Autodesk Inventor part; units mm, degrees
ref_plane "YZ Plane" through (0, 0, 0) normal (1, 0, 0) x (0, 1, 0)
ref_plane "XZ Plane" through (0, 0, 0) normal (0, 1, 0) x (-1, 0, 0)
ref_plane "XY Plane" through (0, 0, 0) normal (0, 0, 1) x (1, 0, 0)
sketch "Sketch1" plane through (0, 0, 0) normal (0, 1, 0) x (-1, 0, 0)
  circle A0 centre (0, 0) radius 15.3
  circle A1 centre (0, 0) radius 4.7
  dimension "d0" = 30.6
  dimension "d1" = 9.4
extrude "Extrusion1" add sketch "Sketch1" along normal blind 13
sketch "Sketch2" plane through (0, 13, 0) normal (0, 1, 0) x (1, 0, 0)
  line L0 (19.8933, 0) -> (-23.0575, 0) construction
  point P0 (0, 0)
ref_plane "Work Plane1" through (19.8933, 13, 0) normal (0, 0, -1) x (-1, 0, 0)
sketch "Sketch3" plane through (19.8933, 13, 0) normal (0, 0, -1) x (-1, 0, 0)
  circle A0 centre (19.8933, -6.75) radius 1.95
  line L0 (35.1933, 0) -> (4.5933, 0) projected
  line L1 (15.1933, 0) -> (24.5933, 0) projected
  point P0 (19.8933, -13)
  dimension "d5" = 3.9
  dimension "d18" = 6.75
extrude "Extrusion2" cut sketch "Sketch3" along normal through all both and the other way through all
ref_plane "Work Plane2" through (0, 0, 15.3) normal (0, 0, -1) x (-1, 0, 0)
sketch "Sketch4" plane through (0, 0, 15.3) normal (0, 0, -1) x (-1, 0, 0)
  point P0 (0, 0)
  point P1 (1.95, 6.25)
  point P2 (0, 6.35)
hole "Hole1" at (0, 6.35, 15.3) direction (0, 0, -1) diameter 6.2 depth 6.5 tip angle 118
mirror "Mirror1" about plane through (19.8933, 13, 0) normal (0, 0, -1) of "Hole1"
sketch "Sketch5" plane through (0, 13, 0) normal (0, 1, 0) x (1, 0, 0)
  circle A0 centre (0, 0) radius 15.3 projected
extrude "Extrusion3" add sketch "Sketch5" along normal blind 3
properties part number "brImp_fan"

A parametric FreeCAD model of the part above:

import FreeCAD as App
import Part
import Sketcher

doc = App.newDocument("Part")
params = doc.addObject("Spreadsheet::Sheet", "Params")
for row, (alias, value) in enumerate([
    ("sketch1_diameter", "30.6 mm"),
    ("sketch1_diameter2", "9.4 mm"),
    ("pad1_length", "13 mm"),
    ("sketch2_diameter", "3.9 mm"),
    ("sketch3_diameter", "6.2 mm"),
    ("hole_diameter", "6.2 mm"),
    ("hole_depth", "6.5 mm"),
    ("sketch4_diameter", "30.6 mm"),
    ("pad2_length", "3 mm"),
], start=1):
    params.set(f"A{row}", alias)
    params.set(f"B{row}", "=" + value)
    params.setAlias(f"B{row}", alias)

body = doc.addObject("PartDesign::Body", "Body")

sketch1 = body.newObject("Sketcher::SketchObject", "Sketch")
sketch1.AttachmentSupport = (doc.getObject("XZ_Plane"), [""])
sketch1.MapMode = "FlatFace"
sketch1.addGeometry([
    Part.Circle(App.Vector(0, 0, 0), App.Vector(0, 0, 1), 15.3),
    Part.Circle(App.Vector(0, 0, 0), App.Vector(0, 0, 1), 4.7),
], False)
sketch1.addConstraint([
    Sketcher.Constraint("Coincident", 0, 3, -1, 1),
    Sketcher.Constraint("Coincident", 1, 3, -1, 1),
    Sketcher.Constraint("Diameter", 0, 30.6),
    Sketcher.Constraint("Diameter", 1, 9.4),
])
sketch1.setExpression("Constraints[2]", "Params.sketch1_diameter")
sketch1.setExpression("Constraints[3]", "Params.sketch1_diameter2")
pad1 = body.newObject("PartDesign::Pad", "Pad")
pad1.Profile = sketch1
pad1.setExpression("Length", "Params.pad1_length")
pad1.Reversed = True

sketch2 = body.newObject("Sketcher::SketchObject", "Sketch001")
sketch2.AttachmentSupport = (doc.getObject("XY_Plane"), [""])
sketch2.MapMode = "FlatFace"
sketch2.addGeometry(Part.Circle(App.Vector(0, 6.2, 0), App.Vector(0, 0, 1), 1.9), False)
sketch2.addConstraint([
    Sketcher.Constraint("PointOnObject", 0, 3, -2),
    Sketcher.Constraint("Diameter", 0, 3.9),
    Sketcher.Constraint("DistanceY", -1, 1, 0, 3, 6.25),
])
sketch2.setExpression("Constraints[1]", "Params.sketch2_diameter")
pocket1 = body.newObject("PartDesign::Pocket", "Pocket")
pocket1.Profile = sketch2
pocket1.Type = "ThroughAll"
pocket1.Midplane = True

sketch3 = body.newObject("Sketcher::SketchObject", "Sketch002")
sketch3.AttachmentSupport = (doc.getObject("XY_Plane"), [""])
sketch3.MapMode = "FlatFace"
sketch3.AttachmentOffset = App.Placement(App.Vector(0, 0, 15.3), App.Rotation())
sketch3.addGeometry(Part.Circle(App.Vector(0, 6.3, 0), App.Vector(0, 0, 1), 3.1), False)
sketch3.addConstraint([
    Sketcher.Constraint("PointOnObject", 0, 3, -2),
    Sketcher.Constraint("Diameter", 0, 6.2),
    Sketcher.Constraint("DistanceY", -1, 1, 0, 3, 6.35),
])
sketch3.setExpression("Constraints[1]", "Params.sketch3_diameter")
doc.recompute()
hole = body.newObject("PartDesign::Hole", "Hole")
hole.Profile = sketch3
hole.ThreadType = "None"
hole.setExpression("Diameter", "Params.hole_diameter")
hole.DepthType = "Dimension"
hole.setExpression("Depth", "Params.hole_depth")
hole.DrillPoint = "Angled"
hole.DrillPointAngle = 118
doc.recompute()

mirrored = body.newObject("PartDesign::Mirrored", "Mirrored")
mirrored.Originals = [hole]
mirrored.MirrorPlane = (doc.getObject("XY_Plane"), [""])
body.Tip = mirrored

sketch4 = body.newObject("Sketcher::SketchObject", "Sketch003")
sketch4.AttachmentSupport = (doc.getObject("XZ_Plane"), [""])
sketch4.MapMode = "FlatFace"
sketch4.AttachmentOffset = App.Placement(App.Vector(0, 0, -13), App.Rotation())
sketch4.addGeometry(Part.Circle(App.Vector(0, 0, 0), App.Vector(0, 0, 1), 15), False)
sketch4.addConstraint([
    Sketcher.Constraint("Coincident", 0, 3, -1, 1),
    Sketcher.Constraint("Diameter", 0, 30.6),
])
sketch4.setExpression("Constraints[1]", "Params.sketch4_diameter")
pad2 = body.newObject("PartDesign::Pad", "Pad001")
pad2.Profile = sketch4
pad2.setExpression("Length", "Params.pad2_length")
pad2.Reversed = True

doc.recompute()
